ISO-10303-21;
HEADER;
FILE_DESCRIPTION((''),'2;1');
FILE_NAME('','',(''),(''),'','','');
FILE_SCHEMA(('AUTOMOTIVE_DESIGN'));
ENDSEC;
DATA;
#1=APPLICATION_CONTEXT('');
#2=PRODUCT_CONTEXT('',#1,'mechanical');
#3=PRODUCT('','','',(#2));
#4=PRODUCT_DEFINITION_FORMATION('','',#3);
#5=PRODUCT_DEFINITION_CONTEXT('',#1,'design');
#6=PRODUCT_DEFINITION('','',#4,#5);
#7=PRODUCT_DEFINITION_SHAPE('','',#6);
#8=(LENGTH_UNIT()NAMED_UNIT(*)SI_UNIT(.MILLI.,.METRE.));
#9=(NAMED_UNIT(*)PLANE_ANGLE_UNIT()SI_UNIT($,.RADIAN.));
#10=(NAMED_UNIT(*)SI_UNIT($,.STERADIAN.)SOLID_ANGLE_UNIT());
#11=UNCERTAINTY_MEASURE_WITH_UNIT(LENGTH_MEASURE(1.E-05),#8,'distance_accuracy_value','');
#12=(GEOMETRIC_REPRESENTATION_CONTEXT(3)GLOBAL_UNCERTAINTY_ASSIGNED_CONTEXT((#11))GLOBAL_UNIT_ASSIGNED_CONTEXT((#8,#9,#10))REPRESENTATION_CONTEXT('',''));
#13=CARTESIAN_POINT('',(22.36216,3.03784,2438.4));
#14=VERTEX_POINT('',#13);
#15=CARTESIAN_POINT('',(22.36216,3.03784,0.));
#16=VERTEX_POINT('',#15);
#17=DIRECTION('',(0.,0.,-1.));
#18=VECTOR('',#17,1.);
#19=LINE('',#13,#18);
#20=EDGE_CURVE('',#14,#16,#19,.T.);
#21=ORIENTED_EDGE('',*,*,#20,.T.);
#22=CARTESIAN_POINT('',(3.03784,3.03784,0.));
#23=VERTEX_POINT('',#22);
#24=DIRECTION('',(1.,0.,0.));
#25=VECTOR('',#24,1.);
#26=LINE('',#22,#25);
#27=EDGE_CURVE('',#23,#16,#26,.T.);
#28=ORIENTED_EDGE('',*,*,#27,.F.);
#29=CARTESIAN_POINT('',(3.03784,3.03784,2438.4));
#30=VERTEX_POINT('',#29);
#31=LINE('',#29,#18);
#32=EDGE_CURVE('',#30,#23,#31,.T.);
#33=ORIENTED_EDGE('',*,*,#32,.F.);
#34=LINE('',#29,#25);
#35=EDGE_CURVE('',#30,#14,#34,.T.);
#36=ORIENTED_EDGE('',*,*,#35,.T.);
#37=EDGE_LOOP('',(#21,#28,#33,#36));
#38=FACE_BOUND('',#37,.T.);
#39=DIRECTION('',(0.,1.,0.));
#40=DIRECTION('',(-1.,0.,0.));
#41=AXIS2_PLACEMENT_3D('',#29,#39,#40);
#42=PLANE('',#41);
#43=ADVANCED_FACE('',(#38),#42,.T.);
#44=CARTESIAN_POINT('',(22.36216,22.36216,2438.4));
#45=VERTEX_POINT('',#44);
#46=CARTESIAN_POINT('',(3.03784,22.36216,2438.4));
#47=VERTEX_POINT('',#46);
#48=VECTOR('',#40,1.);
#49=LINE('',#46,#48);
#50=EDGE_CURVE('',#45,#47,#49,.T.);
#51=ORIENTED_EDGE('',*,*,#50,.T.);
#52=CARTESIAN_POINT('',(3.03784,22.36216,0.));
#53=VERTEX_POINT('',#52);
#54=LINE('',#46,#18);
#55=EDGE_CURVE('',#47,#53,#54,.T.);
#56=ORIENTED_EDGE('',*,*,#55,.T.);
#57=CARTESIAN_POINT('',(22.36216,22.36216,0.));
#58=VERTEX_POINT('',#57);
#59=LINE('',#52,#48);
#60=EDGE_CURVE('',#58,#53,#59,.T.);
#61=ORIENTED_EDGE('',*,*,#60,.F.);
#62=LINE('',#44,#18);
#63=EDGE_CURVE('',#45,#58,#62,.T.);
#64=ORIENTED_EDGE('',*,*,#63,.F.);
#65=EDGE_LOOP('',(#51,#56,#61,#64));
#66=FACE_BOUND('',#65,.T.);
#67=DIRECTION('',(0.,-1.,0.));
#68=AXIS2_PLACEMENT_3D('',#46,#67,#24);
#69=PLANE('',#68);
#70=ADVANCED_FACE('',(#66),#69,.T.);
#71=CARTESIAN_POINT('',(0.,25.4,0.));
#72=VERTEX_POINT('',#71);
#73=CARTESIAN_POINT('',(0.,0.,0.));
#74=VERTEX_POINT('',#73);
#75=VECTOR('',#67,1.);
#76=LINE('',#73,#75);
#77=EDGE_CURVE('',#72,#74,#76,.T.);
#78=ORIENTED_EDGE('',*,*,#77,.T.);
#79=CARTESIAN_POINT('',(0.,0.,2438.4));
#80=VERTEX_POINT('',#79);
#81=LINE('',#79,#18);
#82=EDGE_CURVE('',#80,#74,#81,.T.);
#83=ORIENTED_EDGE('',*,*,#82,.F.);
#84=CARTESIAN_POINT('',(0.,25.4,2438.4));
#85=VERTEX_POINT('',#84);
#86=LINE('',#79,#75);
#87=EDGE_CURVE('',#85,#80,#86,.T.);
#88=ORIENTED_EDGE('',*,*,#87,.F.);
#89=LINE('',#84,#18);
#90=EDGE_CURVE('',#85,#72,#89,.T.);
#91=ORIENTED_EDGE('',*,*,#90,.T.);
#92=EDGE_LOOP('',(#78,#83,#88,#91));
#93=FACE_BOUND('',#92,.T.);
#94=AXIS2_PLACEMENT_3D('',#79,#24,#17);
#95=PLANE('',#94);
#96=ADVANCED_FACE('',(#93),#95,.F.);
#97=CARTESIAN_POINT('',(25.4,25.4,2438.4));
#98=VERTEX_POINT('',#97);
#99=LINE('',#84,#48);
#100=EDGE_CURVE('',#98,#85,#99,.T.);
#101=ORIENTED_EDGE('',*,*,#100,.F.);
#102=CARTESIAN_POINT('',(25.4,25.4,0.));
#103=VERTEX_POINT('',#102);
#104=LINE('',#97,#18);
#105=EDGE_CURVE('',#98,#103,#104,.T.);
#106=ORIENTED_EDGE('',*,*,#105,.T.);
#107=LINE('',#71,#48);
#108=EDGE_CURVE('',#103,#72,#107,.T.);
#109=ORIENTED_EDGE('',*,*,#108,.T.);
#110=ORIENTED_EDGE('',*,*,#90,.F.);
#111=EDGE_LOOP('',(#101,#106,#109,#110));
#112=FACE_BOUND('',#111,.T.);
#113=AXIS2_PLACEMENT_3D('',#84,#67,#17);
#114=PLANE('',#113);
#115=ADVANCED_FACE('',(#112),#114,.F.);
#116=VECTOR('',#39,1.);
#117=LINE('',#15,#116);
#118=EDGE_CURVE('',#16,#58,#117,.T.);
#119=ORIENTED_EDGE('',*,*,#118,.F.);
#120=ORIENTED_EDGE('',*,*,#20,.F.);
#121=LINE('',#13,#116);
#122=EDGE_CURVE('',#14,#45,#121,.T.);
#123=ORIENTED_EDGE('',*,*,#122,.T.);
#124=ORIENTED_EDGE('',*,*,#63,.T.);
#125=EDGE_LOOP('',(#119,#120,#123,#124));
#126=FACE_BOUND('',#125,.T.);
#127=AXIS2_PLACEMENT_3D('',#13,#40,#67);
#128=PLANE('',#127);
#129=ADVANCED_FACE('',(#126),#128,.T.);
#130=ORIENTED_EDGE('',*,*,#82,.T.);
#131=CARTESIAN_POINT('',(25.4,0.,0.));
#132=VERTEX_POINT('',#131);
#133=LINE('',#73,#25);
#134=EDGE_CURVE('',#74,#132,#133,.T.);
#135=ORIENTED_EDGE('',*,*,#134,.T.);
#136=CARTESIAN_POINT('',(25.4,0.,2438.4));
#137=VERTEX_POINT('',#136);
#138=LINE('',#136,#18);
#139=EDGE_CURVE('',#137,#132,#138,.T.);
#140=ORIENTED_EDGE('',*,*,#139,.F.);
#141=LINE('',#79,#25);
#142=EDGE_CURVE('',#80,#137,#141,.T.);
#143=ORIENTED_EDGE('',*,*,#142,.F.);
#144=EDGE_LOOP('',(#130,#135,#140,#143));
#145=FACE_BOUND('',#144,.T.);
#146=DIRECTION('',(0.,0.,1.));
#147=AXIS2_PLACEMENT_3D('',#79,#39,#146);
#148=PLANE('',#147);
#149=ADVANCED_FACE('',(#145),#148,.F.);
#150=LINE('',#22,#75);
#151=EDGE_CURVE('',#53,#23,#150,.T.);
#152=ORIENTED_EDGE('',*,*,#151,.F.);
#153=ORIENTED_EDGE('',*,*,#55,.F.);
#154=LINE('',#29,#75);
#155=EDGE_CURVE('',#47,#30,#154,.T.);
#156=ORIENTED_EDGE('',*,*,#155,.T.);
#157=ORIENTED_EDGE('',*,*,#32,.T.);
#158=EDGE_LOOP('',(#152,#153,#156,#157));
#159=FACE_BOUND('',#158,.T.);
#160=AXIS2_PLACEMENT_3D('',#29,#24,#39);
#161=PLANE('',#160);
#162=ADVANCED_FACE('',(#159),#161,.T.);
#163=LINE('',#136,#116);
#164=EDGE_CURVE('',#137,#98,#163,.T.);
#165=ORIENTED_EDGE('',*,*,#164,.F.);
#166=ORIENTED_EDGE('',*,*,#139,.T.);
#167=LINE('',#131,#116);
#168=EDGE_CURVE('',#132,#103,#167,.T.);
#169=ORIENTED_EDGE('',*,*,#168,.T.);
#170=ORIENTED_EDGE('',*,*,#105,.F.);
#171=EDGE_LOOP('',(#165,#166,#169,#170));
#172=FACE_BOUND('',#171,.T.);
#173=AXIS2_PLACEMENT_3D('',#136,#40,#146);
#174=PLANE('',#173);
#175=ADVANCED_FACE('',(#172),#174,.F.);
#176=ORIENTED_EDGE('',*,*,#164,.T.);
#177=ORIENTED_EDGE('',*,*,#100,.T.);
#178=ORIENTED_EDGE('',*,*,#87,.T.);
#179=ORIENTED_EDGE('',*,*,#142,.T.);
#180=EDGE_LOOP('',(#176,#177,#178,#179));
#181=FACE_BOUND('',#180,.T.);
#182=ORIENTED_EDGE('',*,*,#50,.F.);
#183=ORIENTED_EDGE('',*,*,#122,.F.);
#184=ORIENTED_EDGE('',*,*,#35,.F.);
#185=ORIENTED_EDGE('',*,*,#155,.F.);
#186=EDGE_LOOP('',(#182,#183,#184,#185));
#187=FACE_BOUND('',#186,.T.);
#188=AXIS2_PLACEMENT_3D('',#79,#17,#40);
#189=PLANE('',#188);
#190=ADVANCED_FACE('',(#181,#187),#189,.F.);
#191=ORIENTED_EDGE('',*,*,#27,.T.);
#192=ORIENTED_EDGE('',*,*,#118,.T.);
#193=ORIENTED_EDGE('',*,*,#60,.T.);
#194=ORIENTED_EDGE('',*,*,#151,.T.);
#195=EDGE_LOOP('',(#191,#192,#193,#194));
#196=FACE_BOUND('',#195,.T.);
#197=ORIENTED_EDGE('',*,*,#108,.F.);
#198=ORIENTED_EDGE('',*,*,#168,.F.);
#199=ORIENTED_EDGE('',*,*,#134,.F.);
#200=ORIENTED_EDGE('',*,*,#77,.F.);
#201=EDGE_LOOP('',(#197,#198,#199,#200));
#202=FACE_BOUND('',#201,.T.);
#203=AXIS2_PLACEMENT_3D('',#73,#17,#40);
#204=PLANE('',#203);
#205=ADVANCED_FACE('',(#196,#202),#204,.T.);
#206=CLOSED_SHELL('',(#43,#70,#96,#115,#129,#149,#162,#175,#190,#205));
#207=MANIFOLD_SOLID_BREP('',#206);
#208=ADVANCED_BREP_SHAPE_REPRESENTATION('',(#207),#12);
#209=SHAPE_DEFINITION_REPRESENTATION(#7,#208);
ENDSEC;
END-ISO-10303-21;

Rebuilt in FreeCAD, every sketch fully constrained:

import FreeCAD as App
import Part
import Sketcher
Q = App.Units.Quantity

doc = App.newDocument("Part")
body = doc.addObject("PartDesign::Body", "Body")

# Sketch on XY plane
sketch1 = doc.addObject("Sketcher::SketchObject", "Sketch")
body.addObject(sketch1)
sketch1.AttachmentSupport = (doc.XY_Plane, [""])
sketch1.MapMode = "FlatFace"
sketch1.addGeometry(Part.LineSegment(App.Vector(0, 25.4, 0), App.Vector(0, 0, 0)), False)
sketch1.addGeometry(Part.LineSegment(App.Vector(0, 0, 0), App.Vector(25.4, 0, 0)), False)
sketch1.addGeometry(Part.LineSegment(App.Vector(25.4, 0, 0), App.Vector(25.4, 25.4, 0)), False)
sketch1.addGeometry(Part.LineSegment(App.Vector(25.4, 25.4, 0), App.Vector(0, 25.4, 0)), False)
sketch1.addGeometry(Part.LineSegment(App.Vector(22.36216, 3.03784, 0), App.Vector(3.03784, 3.03784, 0)), False)
sketch1.addGeometry(Part.LineSegment(App.Vector(3.03784, 3.03784, 0), App.Vector(3.03784, 22.36216, 0)), False)
sketch1.addGeometry(Part.LineSegment(App.Vector(3.03784, 22.36216, 0), App.Vector(22.36216, 22.36216, 0)), False)
sketch1.addGeometry(Part.LineSegment(App.Vector(22.36216, 22.36216, 0), App.Vector(22.36216, 3.03784, 0)), False)
sketch1.addConstraint(Sketcher.Constraint("Coincident", 0, 2, 1, 1))
sketch1.addConstraint(Sketcher.Constraint("Coincident", 1, 2, 2, 1))
sketch1.addConstraint(Sketcher.Constraint("Coincident", 2, 2, 3, 1))
sketch1.addConstraint(Sketcher.Constraint("Coincident", 3, 2, 0, 1))
sketch1.addConstraint(Sketcher.Constraint("Coincident", 4, 2, 5, 1))
sketch1.addConstraint(Sketcher.Constraint("Coincident", 5, 2, 6, 1))
sketch1.addConstraint(Sketcher.Constraint("Coincident", 6, 2, 7, 1))
sketch1.addConstraint(Sketcher.Constraint("Coincident", 7, 2, 4, 1))
sketch1.addConstraint(Sketcher.Constraint("Vertical", 0))
sketch1.addConstraint(Sketcher.Constraint("Horizontal", 1))
sketch1.addConstraint(Sketcher.Constraint("Vertical", 2))
sketch1.addConstraint(Sketcher.Constraint("Horizontal", 3))
sketch1.addConstraint(Sketcher.Constraint("Horizontal", 4))
sketch1.addConstraint(Sketcher.Constraint("Vertical", 5))
sketch1.addConstraint(Sketcher.Constraint("Horizontal", 6))
sketch1.addConstraint(Sketcher.Constraint("Vertical", 7))
sketch1.addConstraint(Sketcher.Constraint("Coincident", 0, 2, -1, 1))
sketch1.addConstraint(Sketcher.Constraint("Equal", 3, 0))
sketch1.addConstraint(Sketcher.Constraint("Equal", 6, 5))
sketch1.addConstraint(Sketcher.Constraint("DistanceX", 1, 1, 1, 2, Q("1 in")))
sketch1.addConstraint(Sketcher.Constraint("DistanceX", 4, 2, 4, 1, Q("0.7608 in")))
sketch1.addConstraint(Sketcher.Constraint("DistanceX", -1, 1, 4, 2, Q("0.1196 in")))
sketch1.addConstraint(Sketcher.Constraint("DistanceY", -1, 1, 4, 2, Q("0.1196 in")))
pad1 = doc.addObject("PartDesign::Pad", "Pad")
body.addObject(pad1)
pad1.Profile = sketch1
pad1.Length = Q("96 in")

doc.recompute()
